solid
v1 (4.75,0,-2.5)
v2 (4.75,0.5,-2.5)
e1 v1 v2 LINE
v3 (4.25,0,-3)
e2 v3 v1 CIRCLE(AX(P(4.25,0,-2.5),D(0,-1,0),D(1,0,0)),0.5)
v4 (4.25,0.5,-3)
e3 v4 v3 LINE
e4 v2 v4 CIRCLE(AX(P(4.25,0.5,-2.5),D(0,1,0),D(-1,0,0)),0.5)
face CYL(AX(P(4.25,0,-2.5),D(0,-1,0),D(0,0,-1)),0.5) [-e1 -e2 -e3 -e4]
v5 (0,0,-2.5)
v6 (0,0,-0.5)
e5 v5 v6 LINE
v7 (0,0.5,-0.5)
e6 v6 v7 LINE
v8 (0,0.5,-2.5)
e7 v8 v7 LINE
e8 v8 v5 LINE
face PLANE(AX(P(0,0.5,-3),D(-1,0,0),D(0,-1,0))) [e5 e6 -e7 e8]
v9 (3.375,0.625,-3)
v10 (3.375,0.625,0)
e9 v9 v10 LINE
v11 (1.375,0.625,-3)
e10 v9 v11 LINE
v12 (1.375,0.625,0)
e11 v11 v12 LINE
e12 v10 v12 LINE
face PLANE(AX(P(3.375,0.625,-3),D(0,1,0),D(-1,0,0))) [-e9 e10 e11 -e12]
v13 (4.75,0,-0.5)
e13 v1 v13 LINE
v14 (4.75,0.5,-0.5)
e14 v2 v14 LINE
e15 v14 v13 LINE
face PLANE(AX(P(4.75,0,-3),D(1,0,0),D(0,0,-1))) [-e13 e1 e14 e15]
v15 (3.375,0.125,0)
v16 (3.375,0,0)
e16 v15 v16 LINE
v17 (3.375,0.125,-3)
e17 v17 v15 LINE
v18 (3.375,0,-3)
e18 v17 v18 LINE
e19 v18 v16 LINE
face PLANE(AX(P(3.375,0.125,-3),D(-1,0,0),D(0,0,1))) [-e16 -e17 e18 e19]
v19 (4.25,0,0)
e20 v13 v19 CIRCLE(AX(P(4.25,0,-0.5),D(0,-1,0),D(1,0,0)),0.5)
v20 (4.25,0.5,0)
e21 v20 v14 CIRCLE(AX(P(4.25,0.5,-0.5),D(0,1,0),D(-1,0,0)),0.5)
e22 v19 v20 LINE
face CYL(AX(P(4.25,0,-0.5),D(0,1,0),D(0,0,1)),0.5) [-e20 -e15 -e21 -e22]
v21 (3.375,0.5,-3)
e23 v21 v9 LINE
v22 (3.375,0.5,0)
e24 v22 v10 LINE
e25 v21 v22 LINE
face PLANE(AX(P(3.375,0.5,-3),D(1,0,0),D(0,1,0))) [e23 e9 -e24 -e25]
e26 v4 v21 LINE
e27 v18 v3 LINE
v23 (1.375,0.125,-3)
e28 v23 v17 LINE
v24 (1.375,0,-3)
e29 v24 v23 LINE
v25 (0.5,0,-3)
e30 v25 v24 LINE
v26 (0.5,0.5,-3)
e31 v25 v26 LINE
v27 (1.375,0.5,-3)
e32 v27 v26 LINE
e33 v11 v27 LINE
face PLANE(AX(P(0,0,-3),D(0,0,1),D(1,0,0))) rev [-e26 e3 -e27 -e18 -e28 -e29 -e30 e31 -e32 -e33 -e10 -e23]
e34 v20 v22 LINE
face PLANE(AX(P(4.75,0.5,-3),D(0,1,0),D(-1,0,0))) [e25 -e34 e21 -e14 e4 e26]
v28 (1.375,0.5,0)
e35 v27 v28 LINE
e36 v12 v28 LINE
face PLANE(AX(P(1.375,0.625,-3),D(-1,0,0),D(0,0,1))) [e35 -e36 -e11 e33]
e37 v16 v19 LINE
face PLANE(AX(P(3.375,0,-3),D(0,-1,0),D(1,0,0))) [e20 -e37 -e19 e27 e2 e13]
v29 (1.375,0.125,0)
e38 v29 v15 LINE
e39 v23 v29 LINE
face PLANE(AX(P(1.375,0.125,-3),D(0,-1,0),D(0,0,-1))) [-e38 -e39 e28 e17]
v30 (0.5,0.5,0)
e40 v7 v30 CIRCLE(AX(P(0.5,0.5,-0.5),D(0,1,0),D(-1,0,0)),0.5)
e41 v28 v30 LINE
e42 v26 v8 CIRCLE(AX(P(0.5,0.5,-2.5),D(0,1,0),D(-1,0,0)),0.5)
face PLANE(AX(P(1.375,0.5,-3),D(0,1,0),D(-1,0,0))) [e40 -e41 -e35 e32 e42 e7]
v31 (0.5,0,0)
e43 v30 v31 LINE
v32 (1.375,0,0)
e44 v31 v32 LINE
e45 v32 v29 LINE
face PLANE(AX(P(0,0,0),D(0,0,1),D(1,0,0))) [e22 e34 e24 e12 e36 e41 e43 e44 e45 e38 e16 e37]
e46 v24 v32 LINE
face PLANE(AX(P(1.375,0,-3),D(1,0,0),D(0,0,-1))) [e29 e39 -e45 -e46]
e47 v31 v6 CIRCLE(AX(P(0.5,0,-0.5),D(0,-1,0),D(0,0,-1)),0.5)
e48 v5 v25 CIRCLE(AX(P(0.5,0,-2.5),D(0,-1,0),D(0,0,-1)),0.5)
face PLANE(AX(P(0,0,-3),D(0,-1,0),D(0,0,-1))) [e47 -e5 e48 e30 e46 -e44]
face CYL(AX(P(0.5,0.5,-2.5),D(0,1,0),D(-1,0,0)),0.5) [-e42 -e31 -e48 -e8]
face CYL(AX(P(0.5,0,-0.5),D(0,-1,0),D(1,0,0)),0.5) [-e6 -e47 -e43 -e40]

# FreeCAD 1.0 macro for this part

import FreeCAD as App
import Part
import Sketcher
from FreeCAD import Vector


def edges_at(feature, points):
    """Names of the edges that pass closest to the given points."""
    edges = feature.Shape.Edges
    near = lambda p: min(range(len(edges)), key=lambda i: edges[i].distToShape(Part.Vertex(*p))[0])
    return sorted({f"Edge{near(p) + 1}" for p in points})

doc = App.newDocument("Part")
params = doc.addObject("Spreadsheet::Sheet", "Params")
for row, (alias, value) in enumerate([
    ("sketch1_width", "2 mm"),
    ("sketch1_height", "0.5 mm"),
    ("pad1_length", "3 mm"),
    ("fillet_radius", "0.5 mm"),
], start=1):
    params.set(f"A{row}", alias)
    params.set(f"B{row}", "=" + value)
    params.setAlias(f"B{row}", alias)

body = doc.addObject("PartDesign::Body", "Body")

# Sketch on XY plane
sketch1 = doc.addObject("Sketcher::SketchObject", "Sketch")
body.addObject(sketch1)
sketch1.AttachmentSupport = (doc.XY_Plane, [""])
sketch1.MapMode = "FlatFace"
sketch1.addGeometry(Part.LineSegment(Vector(0, 0, 0), Vector(1.38, 0, 0)), False)
sketch1.addGeometry(Part.LineSegment(Vector(1.38, 0, 0), Vector(1.38, 0.12, 0)), False)
sketch1.addGeometry(Part.LineSegment(Vector(1.38, 0.12, 0), Vector(3.38, 0.12, 0)), False)
sketch1.addGeometry(Part.LineSegment(Vector(3.38, 0.12, 0), Vector(3.38, 0, 0)), False)
sketch1.addGeometry(Part.LineSegment(Vector(3.38, 0, 0), Vector(4.75, 0, 0)), False)
sketch1.addGeometry(Part.LineSegment(Vector(4.75, 0, 0), Vector(4.75, 0.5, 0)), False)
sketch1.addGeometry(Part.LineSegment(Vector(4.75, 0.5, 0), Vector(3.38, 0.5, 0)), False)
sketch1.addGeometry(Part.LineSegment(Vector(3.38, 0.5, 0), Vector(3.38, 0.62, 0)), False)
sketch1.addGeometry(Part.LineSegment(Vector(3.38, 0.62, 0), Vector(1.38, 0.62, 0)), False)
sketch1.addGeometry(Part.LineSegment(Vector(1.38, 0.62, 0), Vector(1.38, 0.5, 0)), False)
sketch1.addGeometry(Part.LineSegment(Vector(1.38, 0.5, 0), Vector(0, 0.5, 0)), False)
sketch1.addGeometry(Part.LineSegment(Vector(0, 0.5, 0), Vector(0, 0, 0)), False)
sketch1.addConstraint(Sketcher.Constraint("Coincident", 0, 2, 1, 1))
sketch1.addConstraint(Sketcher.Constraint("Coincident", 1, 2, 2, 1))
sketch1.addConstraint(Sketcher.Constraint("Coincident", 2, 2, 3, 1))
sketch1.addConstraint(Sketcher.Constraint("Coincident", 3, 2, 4, 1))
sketch1.addConstraint(Sketcher.Constraint("Coincident", 4, 2, 5, 1))
sketch1.addConstraint(Sketcher.Constraint("Coincident", 5, 2, 6, 1))
sketch1.addConstraint(Sketcher.Constraint("Coincident", 6, 2, 7, 1))
sketch1.addConstraint(Sketcher.Constraint("Coincident", 7, 2, 8, 1))
sketch1.addConstraint(Sketcher.Constraint("Coincident", 8, 2, 9, 1))
sketch1.addConstraint(Sketcher.Constraint("Coincident", 9, 2, 10, 1))
sketch1.addConstraint(Sketcher.Constraint("Coincident", 10, 2, 11, 1))
sketch1.addConstraint(Sketcher.Constraint("Coincident", 11, 2, 0, 1))
sketch1.addConstraint(Sketcher.Constraint("Horizontal", 0))
sketch1.addConstraint(Sketcher.Constraint("Vertical", 1))
sketch1.addConstraint(Sketcher.Constraint("Horizontal", 2))
sketch1.addConstraint(Sketcher.Constraint("Vertical", 3))
sketch1.addConstraint(Sketcher.Constraint("Horizontal", 4))
sketch1.addConstraint(Sketcher.Constraint("Vertical", 5))
sketch1.addConstraint(Sketcher.Constraint("Horizontal", 6))
sketch1.addConstraint(Sketcher.Constraint("Vertical", 7))
sketch1.addConstraint(Sketcher.Constraint("Horizontal", 8))
sketch1.addConstraint(Sketcher.Constraint("Vertical", 9))
sketch1.addConstraint(Sketcher.Constraint("Horizontal", 10))
sketch1.addConstraint(Sketcher.Constraint("Vertical", 11))
sketch1.addConstraint(Sketcher.Constraint("Coincident", 11, 2, -1, 1))
sketch1.addConstraint(Sketcher.Constraint("PointOnObject", 3, 2, -1))
sketch1.addConstraint(Sketcher.Constraint("Horizontal", 6, 2, 9, 2))
sketch1.addConstraint(Sketcher.Constraint("Vertical", 3, 2, 6, 2))
sketch1.addConstraint(Sketcher.Constraint("Vertical", 1, 2, 8, 2))
sketch1.addConstraint(Sketcher.Constraint("Equal", 0, 4))
sketch1.addConstraint(Sketcher.Constraint("Equal", 3, 7))
sketch1.addConstraint(Sketcher.Constraint("DistanceX", 2, 1, 2, 2, 2.0))
sketch1.addConstraint(Sketcher.Constraint("DistanceY", 5, 1, 5, 2, 0.5))
sketch1.addConstraint(Sketcher.Constraint("DistanceX", 0, 1, 0, 2, 1.375))
sketch1.addConstraint(Sketcher.Constraint("DistanceY", 1, 1, 1, 2, 0.125))
sketch1.setExpression("Constraints[31]", "Params.sketch1_width")
sketch1.setExpression("Constraints[32]", "Params.sketch1_height")
pad1 = doc.addObject("PartDesign::Pad", "Pad")
body.addObject(pad1)
pad1.Profile = sketch1
pad1.setExpression("Length", "Params.pad1_length")
pad1.Reversed = True
doc.recompute()

fillet = doc.addObject("PartDesign::Fillet", "Fillet")
body.addObject(fillet)
fillet.Base = (pad1, edges_at(pad1, [
    (4.75, 0.25, 0),
    (0, 0.25, 0),
    (4.75, 0.25, -3),
    (0, 0.25, -3),
]))
fillet.setExpression("Radius", "Params.fillet_radius")

doc.recompute()
